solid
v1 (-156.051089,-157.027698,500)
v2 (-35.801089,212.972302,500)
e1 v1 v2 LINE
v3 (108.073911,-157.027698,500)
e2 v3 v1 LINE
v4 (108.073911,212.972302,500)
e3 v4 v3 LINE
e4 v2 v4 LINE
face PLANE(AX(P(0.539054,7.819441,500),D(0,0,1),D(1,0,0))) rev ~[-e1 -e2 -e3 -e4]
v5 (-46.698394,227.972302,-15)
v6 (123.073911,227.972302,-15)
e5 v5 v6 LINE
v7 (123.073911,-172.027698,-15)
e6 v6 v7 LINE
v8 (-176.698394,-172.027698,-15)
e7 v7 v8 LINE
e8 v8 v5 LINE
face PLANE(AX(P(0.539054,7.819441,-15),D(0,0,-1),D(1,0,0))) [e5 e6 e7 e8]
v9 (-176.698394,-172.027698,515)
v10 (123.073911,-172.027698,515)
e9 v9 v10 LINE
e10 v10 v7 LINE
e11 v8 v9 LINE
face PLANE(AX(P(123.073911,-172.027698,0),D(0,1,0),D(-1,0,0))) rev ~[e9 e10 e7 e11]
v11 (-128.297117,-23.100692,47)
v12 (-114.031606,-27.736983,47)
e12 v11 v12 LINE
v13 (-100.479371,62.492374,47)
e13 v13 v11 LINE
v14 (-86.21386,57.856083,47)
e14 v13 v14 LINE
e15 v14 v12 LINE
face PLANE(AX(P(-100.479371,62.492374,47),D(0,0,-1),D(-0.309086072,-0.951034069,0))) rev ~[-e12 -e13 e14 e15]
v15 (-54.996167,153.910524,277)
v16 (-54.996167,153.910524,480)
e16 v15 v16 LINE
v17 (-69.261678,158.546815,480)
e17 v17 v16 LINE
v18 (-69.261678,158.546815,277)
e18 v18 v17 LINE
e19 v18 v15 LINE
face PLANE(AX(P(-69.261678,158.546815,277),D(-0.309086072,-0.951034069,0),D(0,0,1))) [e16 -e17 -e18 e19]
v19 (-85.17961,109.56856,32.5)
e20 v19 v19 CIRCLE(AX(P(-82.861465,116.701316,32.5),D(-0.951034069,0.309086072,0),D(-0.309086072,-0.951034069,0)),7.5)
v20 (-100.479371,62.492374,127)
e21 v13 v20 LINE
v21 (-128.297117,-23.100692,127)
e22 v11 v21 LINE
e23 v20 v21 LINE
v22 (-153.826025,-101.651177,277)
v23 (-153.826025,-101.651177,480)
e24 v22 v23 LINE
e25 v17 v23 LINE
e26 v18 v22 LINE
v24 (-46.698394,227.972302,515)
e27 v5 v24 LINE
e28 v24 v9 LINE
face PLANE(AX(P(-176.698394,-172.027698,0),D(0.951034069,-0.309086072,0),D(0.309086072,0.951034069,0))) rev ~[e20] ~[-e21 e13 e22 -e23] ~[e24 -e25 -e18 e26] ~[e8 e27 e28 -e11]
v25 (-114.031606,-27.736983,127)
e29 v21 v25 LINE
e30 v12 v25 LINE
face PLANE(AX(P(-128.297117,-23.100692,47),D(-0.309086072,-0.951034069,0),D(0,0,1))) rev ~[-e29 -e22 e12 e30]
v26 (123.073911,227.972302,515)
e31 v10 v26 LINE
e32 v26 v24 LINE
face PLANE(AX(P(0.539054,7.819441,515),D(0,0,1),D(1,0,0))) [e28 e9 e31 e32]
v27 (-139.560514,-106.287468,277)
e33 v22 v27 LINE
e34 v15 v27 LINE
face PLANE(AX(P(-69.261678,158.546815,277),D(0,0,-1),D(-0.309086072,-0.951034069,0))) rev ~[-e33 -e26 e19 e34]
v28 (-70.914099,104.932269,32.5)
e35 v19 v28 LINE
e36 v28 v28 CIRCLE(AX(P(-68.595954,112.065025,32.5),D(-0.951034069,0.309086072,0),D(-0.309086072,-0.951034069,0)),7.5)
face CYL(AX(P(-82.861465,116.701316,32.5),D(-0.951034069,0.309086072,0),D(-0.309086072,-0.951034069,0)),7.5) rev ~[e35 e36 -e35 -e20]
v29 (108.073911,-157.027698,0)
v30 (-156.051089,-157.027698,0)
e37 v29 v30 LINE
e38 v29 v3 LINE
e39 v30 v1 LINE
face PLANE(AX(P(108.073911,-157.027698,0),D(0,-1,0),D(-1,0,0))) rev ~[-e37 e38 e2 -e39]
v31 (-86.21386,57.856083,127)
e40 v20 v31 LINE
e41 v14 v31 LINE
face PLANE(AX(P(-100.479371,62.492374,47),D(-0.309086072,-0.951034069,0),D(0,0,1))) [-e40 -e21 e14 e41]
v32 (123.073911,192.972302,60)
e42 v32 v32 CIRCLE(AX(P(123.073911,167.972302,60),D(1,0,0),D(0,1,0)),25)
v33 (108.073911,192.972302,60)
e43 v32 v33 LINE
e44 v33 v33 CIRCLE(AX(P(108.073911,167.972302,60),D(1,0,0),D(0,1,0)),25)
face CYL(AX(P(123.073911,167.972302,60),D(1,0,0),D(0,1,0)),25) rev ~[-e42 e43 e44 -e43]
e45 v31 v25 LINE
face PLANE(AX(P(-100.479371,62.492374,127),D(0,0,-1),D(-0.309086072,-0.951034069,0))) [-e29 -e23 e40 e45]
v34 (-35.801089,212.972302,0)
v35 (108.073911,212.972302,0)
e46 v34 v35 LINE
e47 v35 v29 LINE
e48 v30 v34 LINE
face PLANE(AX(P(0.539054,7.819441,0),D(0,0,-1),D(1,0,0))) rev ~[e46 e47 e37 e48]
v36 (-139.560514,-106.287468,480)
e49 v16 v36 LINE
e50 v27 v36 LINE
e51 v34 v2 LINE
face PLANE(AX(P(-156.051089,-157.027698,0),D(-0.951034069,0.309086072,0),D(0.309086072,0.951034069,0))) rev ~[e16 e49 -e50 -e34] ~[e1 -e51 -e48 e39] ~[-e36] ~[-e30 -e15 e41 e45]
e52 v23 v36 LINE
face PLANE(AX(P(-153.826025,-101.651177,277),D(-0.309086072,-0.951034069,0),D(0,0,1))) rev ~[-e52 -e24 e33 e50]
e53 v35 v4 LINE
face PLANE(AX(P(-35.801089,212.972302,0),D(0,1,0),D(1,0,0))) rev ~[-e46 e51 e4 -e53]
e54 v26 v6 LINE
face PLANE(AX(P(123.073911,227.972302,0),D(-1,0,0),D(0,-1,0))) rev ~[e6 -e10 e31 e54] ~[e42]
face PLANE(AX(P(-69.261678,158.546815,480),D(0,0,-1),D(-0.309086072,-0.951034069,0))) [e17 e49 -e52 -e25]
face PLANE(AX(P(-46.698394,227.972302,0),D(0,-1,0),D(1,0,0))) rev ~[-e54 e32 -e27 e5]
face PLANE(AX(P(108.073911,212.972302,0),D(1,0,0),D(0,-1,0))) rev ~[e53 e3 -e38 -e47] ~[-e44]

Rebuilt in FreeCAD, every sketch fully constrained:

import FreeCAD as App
import Part
import Sketcher
from FreeCAD import Vector
Q = App.Units.Quantity

doc = App.newDocument("Part")
body = doc.addObject("PartDesign::Body", "Body")

sketch1 = doc.addObject("Sketcher::SketchObject", "Sketch")
body.addObject(sketch1)
sketch1.AttachmentSupport = (doc.XY_Plane, [""])
sketch1.MapMode = "FlatFace"
sketch1.addGeometry(Part.LineSegment(Vector(123, 228, 0), Vector(-47, 228, 0)), False)
sketch1.addGeometry(Part.LineSegment(Vector(-47, 228, 0), Vector(-177, -172, 0)), False)
sketch1.addGeometry(Part.LineSegment(Vector(-177, -172, 0), Vector(123, -172, 0)), False)
sketch1.addGeometry(Part.LineSegment(Vector(123, -172, 0), Vector(123, 228, 0)), False)
sketch1.addGeometry(Part.LineSegment(Vector(-36, 213, 0), Vector(108, 213, 0)), False)
sketch1.addGeometry(Part.LineSegment(Vector(108, 213, 0), Vector(108, -157, 0)), False)
sketch1.addGeometry(Part.LineSegment(Vector(108, -157, 0), Vector(-156, -157, 0)), False)
sketch1.addGeometry(Part.LineSegment(Vector(-156, -157, 0), Vector(-36, 213, 0)), False)
sketch1.addConstraint(Sketcher.Constraint("Coincident", 0, 2, 1, 1))
sketch1.addConstraint(Sketcher.Constraint("Coincident", 1, 2, 2, 1))
sketch1.addConstraint(Sketcher.Constraint("Coincident", 2, 2, 3, 1))
sketch1.addConstraint(Sketcher.Constraint("Coincident", 3, 2, 0, 1))
sketch1.addConstraint(Sketcher.Constraint("Coincident", 4, 2, 5, 1))
sketch1.addConstraint(Sketcher.Constraint("Coincident", 5, 2, 6, 1))
sketch1.addConstraint(Sketcher.Constraint("Coincident", 6, 2, 7, 1))
sketch1.addConstraint(Sketcher.Constraint("Coincident", 7, 2, 4, 1))
sketch1.addConstraint(Sketcher.Constraint("Horizontal", 0))
sketch1.addConstraint(Sketcher.Constraint("Horizontal", 2))
sketch1.addConstraint(Sketcher.Constraint("Vertical", 3))
sketch1.addConstraint(Sketcher.Constraint("Horizontal", 4))
sketch1.addConstraint(Sketcher.Constraint("Vertical", 5))
sketch1.addConstraint(Sketcher.Constraint("Horizontal", 6))
sketch1.addConstraint(Sketcher.Constraint("Parallel", 1, 7))
sketch1.addConstraint(Sketcher.Constraint("DistanceY", 3, 1, 3, 2, Q("400 mm")))
sketch1.addConstraint(Sketcher.Constraint("DistanceY", 5, 2, 5, 1, Q("370 mm")))
sketch1.addConstraint(Sketcher.Constraint("DistanceX", 1, 2, 0, 2, Q("130 mm")))
sketch1.addConstraint(Sketcher.Constraint("DistanceX", 4, 2, 3, 2, Q("15 mm")))
sketch1.addConstraint(Sketcher.Constraint("DistanceY", 4, 2, 3, 2, Q("15 mm")))
sketch1.addConstraint(Sketcher.Constraint("DistanceX", 4, 1, 4, 2, Q("143.875 mm")))
sketch1.addConstraint(Sketcher.Constraint("DistanceY", -1, 1, 0, 2, Q("227.972302 mm")))
sketch1.addConstraint(Sketcher.Constraint("DistanceX", 0, 2, 0, 1, Q("169.772306 mm")))
sketch1.addConstraint(Sketcher.Constraint("DistanceX", -1, 1, 2, 2, Q("123.073911 mm")))
pad1 = doc.addObject("PartDesign::Pad", "Pad")
body.addObject(pad1)
pad1.Profile = sketch1
pad1.Length = 500

sketch2 = doc.addObject("Sketcher::SketchObject", "Sketch001")
body.addObject(sketch2)
sketch2.Placement = App.Placement(Vector(-109.249874, 35.506209, 0), App.Rotation(Vector(-0.309086072, -0.951034069, 0), Vector(0, 0, 1), Vector(-0.951034069, 0.309086072, 0), "ZXY"))
sketch2.addGeometry(Part.LineSegment(Vector(-129, 480, 0), Vector(-129, 277, 0)), False)
sketch2.addGeometry(Part.LineSegment(Vector(-129, 277, 0), Vector(144, 277, 0)), False)
sketch2.addGeometry(Part.LineSegment(Vector(144, 277, 0), Vector(144, 480, 0)), False)
sketch2.addGeometry(Part.LineSegment(Vector(144, 480, 0), Vector(-129, 480, 0)), False)
sketch2.addGeometry(Part.LineSegment(Vector(-28, 127, 0), Vector(-28, 47, 0)), False)
sketch2.addGeometry(Part.LineSegment(Vector(-28, 47, 0), Vector(62, 47, 0)), False)
sketch2.addGeometry(Part.LineSegment(Vector(62, 47, 0), Vector(62, 127, 0)), False)
sketch2.addGeometry(Part.LineSegment(Vector(62, 127, 0), Vector(-28, 127, 0)), False)
sketch2.addConstraint(Sketcher.Constraint("Coincident", 0, 2, 1, 1))
sketch2.addConstraint(Sketcher.Constraint("Coincident", 1, 2, 2, 1))
sketch2.addConstraint(Sketcher.Constraint("Coincident", 2, 2, 3, 1))
sketch2.addConstraint(Sketcher.Constraint("Coincident", 3, 2, 0, 1))
sketch2.addConstraint(Sketcher.Constraint("Coincident", 4, 2, 5, 1))
sketch2.addConstraint(Sketcher.Constraint("Coincident", 5, 2, 6, 1))
sketch2.addConstraint(Sketcher.Constraint("Coincident", 6, 2, 7, 1))
sketch2.addConstraint(Sketcher.Constraint("Coincident", 7, 2, 4, 1))
sketch2.addConstraint(Sketcher.Constraint("Vertical", 0))
sketch2.addConstraint(Sketcher.Constraint("Horizontal", 1))
sketch2.addConstraint(Sketcher.Constraint("Vertical", 2))
sketch2.addConstraint(Sketcher.Constraint("Horizontal", 3))
sketch2.addConstraint(Sketcher.Constraint("Vertical", 4))
sketch2.addConstraint(Sketcher.Constraint("Horizontal", 5))
sketch2.addConstraint(Sketcher.Constraint("Vertical", 6))
sketch2.addConstraint(Sketcher.Constraint("Horizontal", 7))
sketch2.addConstraint(Sketcher.Constraint("DistanceX", 5, 1, 5, 2, Q("90 mm")))
sketch2.addConstraint(Sketcher.Constraint("DistanceY", 0, 2, 0, 1, Q("203 mm")))
sketch2.addConstraint(Sketcher.Constraint("DistanceY", 4, 2, 4, 1, Q("80 mm")))
sketch2.addConstraint(Sketcher.Constraint("DistanceY", -1, 1, 0, 2, Q("277 mm")))
sketch2.addConstraint(Sketcher.Constraint("DistanceY", -1, 1, 4, 2, Q("47 mm")))
sketch2.addConstraint(Sketcher.Constraint("DistanceX", 0, 2, 4, 2, Q("101 mm")))
sketch2.addConstraint(Sketcher.Constraint("DistanceX", 1, 1, 1, 2, Q("273.594817 mm")))
sketch2.addConstraint(Sketcher.Constraint("DistanceX", 0, 2, -1, 1, Q("129.375603 mm")))
pocket1 = doc.addObject("PartDesign::Pocket", "Pocket")
body.addObject(pocket1)
pocket1.Profile = sketch2
pocket1.Length = 25

sketch3 = doc.addObject("Sketcher::SketchObject", "Sketch002")
body.addObject(sketch3)
sketch3.Placement = App.Placement(Vector(-109.249874, 35.506209, 0), App.Rotation(Vector(-0.309086072, -0.951034069, 0), Vector(0, 0, 1), Vector(-0.951034069, 0.309086072, 0), "ZXY"))
sketch3.addGeometry(Part.Circle(Vector(-85, 33, 0), Vector(0, 0, 1), 8), False)
sketch3.addConstraint(Sketcher.Constraint("Diameter", 0, Q("15 mm")))
sketch3.addConstraint(Sketcher.Constraint("DistanceY", -1, 1, 0, 3, Q("32.5 mm")))
sketch3.addConstraint(Sketcher.Constraint("DistanceX", 0, 3, -1, 1, Q("85.375603 mm")))
pocket2 = doc.addObject("PartDesign::Pocket", "Pocket001")
body.addObject(pocket2)
pocket2.Profile = sketch3
pocket2.Length = 25

sketch4 = doc.addObject("Sketcher::SketchObject", "Sketch003")
body.addObject(sketch4)
sketch4.AttachmentSupport = (doc.YZ_Plane, [""])
sketch4.MapMode = "FlatFace"
sketch4.AttachmentOffset = App.Placement(Vector(0, 0, 123.073911), App.Rotation())
sketch4.addGeometry(Part.Circle(Vector(168, 60, 0), Vector(0, 0, 1), 25), False)
sketch4.addConstraint(Sketcher.Constraint("Diameter", 0, Q("50 mm")))
sketch4.addConstraint(Sketcher.Constraint("DistanceY", -1, 1, 0, 3, Q("60 mm")))
sketch4.addConstraint(Sketcher.Constraint("DistanceX", -1, 1, 0, 3, Q("167.972302 mm")))
pocket3 = doc.addObject("PartDesign::Pocket", "Pocket002")
body.addObject(pocket3)
pocket3.Profile = sketch4
pocket3.Length = 25

sketch5 = doc.addObject("Sketcher::SketchObject", "Sketch004")
body.addObject(sketch5)
sketch5.AttachmentSupport = (doc.XY_Plane, [""])
sketch5.MapMode = "FlatFace"
sketch5.AttachmentOffset = App.Placement(Vector(0, 0, 500), App.Rotation())
sketch5.addGeometry(Part.LineSegment(Vector(123, -172, 0), Vector(123, 228, 0)), False)
sketch5.addGeometry(Part.LineSegment(Vector(123, 228, 0), Vector(-47, 228, 0)), False)
sketch5.addGeometry(Part.LineSegment(Vector(-47, 228, 0), Vector(-177, -172, 0)), False)
sketch5.addGeometry(Part.LineSegment(Vector(-177, -172, 0), Vector(123, -172, 0)), False)
sketch5.addConstraint(Sketcher.Constraint("Coincident", 0, 2, 1, 1))
sketch5.addConstraint(Sketcher.Constraint("Coincident", 1, 2, 2, 1))
sketch5.addConstraint(Sketcher.Constraint("Coincident", 2, 2, 3, 1))
sketch5.addConstraint(Sketcher.Constraint("Coincident", 3, 2, 0, 1))
sketch5.addConstraint(Sketcher.Constraint("Vertical", 0))
sketch5.addConstraint(Sketcher.Constraint("Horizontal", 1))
sketch5.addConstraint(Sketcher.Constraint("Horizontal", 3))
sketch5.addConstraint(Sketcher.Constraint("DistanceY", 0, 1, 0, 2, Q("400 mm")))
sketch5.addConstraint(Sketcher.Constraint("DistanceX", 2, 2, 1, 2, Q("130 mm")))
sketch5.addConstraint(Sketcher.Constraint("DistanceY", -1, 1, 0, 2, Q("227.972302 mm")))
sketch5.addConstraint(Sketcher.Constraint("DistanceX", 1, 2, 1, 1, Q("169.772306 mm")))
sketch5.addConstraint(Sketcher.Constraint("DistanceX", -1, 1, 0, 2, Q("123.073911 mm")))
pad2 = doc.addObject("PartDesign::Pad", "Pad001")
body.addObject(pad2)
pad2.Profile = sketch5
pad2.Length = 15

sketch6 = doc.addObject("Sketcher::SketchObject", "Sketch005")
body.addObject(sketch6)
sketch6.AttachmentSupport = (doc.XY_Plane, [""])
sketch6.MapMode = "FlatFace"
sketch6.addGeometry(Part.LineSegment(Vector(-47, 228, 0), Vector(123, 228, 0)), False)
sketch6.addGeometry(Part.LineSegment(Vector(123, 228, 0), Vector(123, -172, 0)), False)
sketch6.addGeometry(Part.LineSegment(Vector(123, -172, 0), Vector(-177, -172, 0)), False)
sketch6.addGeometry(Part.LineSegment(Vector(-177, -172, 0), Vector(-47, 228, 0)), False)
sketch6.addConstraint(Sketcher.Constraint("Coincident", 0, 2, 1, 1))
sketch6.addConstraint(Sketcher.Constraint("Coincident", 1, 2, 2, 1))
sketch6.addConstraint(Sketcher.Constraint("Coincident", 2, 2, 3, 1))
sketch6.addConstraint(Sketcher.Constraint("Coincident", 3, 2, 0, 1))
sketch6.addConstraint(Sketcher.Constraint("Horizontal", 0))
sketch6.addConstraint(Sketcher.Constraint("Vertical", 1))
sketch6.addConstraint(Sketcher.Constraint("Horizontal", 2))
sketch6.addConstraint(Sketcher.Constraint("DistanceY", 1, 2, 1, 1, Q("400 mm")))
sketch6.addConstraint(Sketcher.Constraint("DistanceX", 2, 2, 3, 2, Q("130 mm")))
sketch6.addConstraint(Sketcher.Constraint("DistanceY", -1, 1, 0, 2, Q("227.972302 mm")))
sketch6.addConstraint(Sketcher.Constraint("DistanceX", 0, 1, 0, 2, Q("169.772306 mm")))
sketch6.addConstraint(Sketcher.Constraint("DistanceX", -1, 1, 0, 2, Q("123.073911 mm")))
pad3 = doc.addObject("PartDesign::Pad", "Pad002")
body.addObject(pad3)
pad3.Profile = sketch6
pad3.Length = 15
pad3.Reversed = True

doc.recompute()
